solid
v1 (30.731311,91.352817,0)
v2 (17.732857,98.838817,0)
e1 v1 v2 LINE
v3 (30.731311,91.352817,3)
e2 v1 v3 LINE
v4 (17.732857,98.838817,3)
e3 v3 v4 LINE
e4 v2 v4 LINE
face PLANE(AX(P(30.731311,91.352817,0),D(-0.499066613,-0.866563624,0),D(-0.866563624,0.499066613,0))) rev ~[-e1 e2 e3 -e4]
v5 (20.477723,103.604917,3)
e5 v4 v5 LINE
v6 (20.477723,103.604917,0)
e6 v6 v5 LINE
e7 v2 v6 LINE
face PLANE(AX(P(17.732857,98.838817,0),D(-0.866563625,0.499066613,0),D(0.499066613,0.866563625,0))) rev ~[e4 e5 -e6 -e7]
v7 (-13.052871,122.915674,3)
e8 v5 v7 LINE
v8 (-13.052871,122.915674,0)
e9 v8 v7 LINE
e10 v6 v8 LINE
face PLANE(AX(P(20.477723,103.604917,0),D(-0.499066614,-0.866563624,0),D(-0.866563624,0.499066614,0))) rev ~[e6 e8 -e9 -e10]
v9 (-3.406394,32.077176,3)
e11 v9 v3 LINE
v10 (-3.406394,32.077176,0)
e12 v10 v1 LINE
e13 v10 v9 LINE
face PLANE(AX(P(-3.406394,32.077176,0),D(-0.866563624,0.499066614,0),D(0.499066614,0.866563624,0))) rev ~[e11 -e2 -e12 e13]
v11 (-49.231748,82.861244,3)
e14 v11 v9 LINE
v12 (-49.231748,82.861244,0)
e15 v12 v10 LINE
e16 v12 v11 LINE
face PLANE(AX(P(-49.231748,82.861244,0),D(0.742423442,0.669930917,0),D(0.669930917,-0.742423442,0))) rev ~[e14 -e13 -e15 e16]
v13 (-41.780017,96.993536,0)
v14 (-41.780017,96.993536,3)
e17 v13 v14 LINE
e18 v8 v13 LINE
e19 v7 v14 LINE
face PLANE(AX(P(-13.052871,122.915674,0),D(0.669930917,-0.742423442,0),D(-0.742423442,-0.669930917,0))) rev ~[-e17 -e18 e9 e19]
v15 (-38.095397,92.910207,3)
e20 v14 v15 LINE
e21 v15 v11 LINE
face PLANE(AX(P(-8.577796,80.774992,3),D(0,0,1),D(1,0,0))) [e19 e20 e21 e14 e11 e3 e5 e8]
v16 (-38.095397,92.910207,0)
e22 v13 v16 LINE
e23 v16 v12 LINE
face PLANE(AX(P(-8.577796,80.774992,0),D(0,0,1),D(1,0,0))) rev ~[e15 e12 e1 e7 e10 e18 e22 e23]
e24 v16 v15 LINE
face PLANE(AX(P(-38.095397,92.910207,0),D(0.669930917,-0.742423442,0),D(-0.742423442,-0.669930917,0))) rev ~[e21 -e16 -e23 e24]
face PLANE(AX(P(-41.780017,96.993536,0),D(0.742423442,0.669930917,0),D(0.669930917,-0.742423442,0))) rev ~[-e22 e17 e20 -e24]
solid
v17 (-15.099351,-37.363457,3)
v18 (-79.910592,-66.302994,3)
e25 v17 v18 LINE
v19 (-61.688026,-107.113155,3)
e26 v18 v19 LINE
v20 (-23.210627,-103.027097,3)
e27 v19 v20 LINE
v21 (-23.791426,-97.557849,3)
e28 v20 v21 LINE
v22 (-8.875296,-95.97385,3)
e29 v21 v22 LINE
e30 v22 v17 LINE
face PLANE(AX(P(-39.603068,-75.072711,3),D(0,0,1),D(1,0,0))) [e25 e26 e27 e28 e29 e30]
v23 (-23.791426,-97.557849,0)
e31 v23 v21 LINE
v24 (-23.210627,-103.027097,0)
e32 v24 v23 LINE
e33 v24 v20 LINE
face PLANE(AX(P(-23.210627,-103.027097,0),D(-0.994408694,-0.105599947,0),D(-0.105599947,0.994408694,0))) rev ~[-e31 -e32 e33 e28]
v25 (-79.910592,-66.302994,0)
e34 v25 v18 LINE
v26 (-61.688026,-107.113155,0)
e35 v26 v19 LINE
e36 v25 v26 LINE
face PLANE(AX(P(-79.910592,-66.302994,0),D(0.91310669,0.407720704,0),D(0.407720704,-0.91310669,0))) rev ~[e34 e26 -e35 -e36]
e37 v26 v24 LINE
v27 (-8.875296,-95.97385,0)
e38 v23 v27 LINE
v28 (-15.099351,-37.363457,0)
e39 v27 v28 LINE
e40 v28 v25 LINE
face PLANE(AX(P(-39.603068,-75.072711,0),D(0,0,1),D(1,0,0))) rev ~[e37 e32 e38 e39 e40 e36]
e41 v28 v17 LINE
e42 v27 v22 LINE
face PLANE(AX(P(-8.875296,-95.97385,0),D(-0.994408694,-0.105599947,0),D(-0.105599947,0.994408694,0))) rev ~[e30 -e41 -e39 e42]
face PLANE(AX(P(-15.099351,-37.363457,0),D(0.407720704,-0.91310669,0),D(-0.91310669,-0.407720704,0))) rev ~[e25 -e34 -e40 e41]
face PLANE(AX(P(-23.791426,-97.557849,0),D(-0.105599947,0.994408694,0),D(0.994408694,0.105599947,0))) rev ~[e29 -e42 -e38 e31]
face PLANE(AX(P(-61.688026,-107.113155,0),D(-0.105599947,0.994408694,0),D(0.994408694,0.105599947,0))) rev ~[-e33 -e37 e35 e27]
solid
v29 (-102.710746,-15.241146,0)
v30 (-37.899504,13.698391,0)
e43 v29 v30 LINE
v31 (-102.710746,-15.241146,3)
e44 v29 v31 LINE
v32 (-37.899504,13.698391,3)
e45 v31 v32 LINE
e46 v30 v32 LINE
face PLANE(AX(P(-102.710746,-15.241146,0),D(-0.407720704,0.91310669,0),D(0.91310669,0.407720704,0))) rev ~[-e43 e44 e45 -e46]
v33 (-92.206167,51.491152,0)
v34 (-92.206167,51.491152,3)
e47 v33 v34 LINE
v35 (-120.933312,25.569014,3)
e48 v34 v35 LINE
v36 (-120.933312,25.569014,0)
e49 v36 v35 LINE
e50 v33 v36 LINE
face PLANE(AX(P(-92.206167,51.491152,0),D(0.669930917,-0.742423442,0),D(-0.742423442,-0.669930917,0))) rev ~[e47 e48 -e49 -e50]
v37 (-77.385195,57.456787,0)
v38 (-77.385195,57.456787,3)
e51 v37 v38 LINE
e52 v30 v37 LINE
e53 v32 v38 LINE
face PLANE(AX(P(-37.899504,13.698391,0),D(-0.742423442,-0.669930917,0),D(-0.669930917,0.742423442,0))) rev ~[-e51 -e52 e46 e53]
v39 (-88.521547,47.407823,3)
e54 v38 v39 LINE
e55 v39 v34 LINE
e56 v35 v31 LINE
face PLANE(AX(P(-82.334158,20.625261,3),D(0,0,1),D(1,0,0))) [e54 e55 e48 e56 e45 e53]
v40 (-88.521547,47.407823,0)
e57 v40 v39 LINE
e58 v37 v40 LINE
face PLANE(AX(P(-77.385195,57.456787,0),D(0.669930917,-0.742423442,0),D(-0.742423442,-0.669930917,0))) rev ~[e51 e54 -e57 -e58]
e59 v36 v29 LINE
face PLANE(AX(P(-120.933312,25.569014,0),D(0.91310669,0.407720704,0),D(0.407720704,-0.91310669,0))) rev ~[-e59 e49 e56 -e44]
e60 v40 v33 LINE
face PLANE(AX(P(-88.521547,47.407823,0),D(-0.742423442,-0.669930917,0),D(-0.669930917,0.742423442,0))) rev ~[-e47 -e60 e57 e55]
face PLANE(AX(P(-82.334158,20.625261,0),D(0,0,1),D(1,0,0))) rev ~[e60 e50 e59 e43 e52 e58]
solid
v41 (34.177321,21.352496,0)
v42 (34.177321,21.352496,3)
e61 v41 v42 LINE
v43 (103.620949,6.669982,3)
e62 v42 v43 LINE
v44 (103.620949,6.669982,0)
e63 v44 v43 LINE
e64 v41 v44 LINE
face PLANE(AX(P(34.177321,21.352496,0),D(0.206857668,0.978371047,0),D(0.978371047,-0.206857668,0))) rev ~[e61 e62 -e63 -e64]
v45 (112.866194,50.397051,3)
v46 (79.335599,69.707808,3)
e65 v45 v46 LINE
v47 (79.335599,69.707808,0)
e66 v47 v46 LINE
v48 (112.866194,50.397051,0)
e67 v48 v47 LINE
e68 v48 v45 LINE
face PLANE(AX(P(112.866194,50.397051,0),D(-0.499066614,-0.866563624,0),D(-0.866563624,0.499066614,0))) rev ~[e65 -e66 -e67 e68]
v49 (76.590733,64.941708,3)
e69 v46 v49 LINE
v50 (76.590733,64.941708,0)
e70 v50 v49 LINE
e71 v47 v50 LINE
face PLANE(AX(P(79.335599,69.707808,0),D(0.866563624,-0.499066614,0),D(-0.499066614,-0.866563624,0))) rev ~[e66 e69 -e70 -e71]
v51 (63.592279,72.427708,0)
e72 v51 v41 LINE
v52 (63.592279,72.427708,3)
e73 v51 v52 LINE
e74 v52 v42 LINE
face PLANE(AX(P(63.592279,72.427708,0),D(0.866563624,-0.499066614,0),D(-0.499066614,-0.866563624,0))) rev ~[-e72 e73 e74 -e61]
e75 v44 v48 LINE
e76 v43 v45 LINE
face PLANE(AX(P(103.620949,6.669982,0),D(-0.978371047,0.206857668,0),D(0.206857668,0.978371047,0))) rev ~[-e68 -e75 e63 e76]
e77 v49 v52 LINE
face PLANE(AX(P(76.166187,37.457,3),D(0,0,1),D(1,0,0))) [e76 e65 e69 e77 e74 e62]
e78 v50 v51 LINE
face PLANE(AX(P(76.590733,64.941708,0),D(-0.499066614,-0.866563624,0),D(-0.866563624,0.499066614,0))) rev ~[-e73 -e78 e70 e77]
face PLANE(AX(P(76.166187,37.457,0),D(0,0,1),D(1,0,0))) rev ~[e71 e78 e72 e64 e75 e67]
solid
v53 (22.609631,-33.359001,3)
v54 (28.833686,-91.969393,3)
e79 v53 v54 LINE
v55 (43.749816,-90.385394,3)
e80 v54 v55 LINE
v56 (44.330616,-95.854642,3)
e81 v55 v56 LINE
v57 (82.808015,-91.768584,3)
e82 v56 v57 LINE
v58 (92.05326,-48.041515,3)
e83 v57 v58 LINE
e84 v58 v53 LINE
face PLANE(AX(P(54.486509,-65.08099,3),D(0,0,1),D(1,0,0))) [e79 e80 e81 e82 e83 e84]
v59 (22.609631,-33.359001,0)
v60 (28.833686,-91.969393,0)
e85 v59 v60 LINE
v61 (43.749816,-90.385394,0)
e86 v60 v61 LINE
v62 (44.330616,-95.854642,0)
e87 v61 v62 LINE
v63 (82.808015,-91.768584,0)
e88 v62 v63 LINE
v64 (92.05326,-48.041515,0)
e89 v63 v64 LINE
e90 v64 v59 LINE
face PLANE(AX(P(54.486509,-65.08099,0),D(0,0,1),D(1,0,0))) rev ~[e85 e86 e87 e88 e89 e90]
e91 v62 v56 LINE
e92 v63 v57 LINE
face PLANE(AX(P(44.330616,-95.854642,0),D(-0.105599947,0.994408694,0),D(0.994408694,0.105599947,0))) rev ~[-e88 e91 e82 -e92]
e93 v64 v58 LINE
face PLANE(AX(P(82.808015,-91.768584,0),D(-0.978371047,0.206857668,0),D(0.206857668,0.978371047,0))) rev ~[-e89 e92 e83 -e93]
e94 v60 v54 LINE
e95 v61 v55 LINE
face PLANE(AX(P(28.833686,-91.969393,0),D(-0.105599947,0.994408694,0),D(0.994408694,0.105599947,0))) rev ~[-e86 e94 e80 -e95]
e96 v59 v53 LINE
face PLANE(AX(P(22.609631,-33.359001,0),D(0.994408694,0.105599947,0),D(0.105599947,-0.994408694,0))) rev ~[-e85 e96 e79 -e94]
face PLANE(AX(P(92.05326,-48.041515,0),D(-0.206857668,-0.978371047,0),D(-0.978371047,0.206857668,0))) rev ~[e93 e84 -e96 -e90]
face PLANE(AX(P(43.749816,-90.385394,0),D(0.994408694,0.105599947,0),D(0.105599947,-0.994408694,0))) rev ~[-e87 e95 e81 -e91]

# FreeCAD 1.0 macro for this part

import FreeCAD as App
import Part
import Sketcher


def add_polygon(sketch, points):
    """Adds a closed chain of lines whose ends are joined by coincident constraints."""
    first, n = sketch.GeometryCount, len(points)
    for a, b in zip(points, points[1:] + points[:1]):
        sketch.addGeometry(Part.LineSegment(App.Vector(*a, 0), App.Vector(*b, 0)), False)
    for i in range(n):
        sketch.addConstraint(Sketcher.Constraint("Coincident", first + i, 2, first + (i + 1) % n, 1))

doc = App.newDocument("Part")
body = doc.addObject("PartDesign::Body", "Body")

# Sketch on XY plane
sketch1 = body.newObject("Sketcher::SketchObject", "Sketch")
sketch1.AttachmentSupport = (doc.getObject("XY_Plane"), [""])
sketch1.MapMode = "FlatFace"
add_polygon(sketch1, [(-37.899504, 13.698391), (-77.385195, 57.456787), (-88.521547, 47.407823), (-92.206167, 51.491152), (-120.933312, 25.569014), (-102.710746, -15.241146)])  # lines 0-5
sketch1.addConstraint(Sketcher.Constraint("Perpendicular", 0, 1))
sketch1.addConstraint(Sketcher.Constraint("Perpendicular", 1, 2))
sketch1.addConstraint(Sketcher.Constraint("Perpendicular", 2, 3))
sketch1.addConstraint(Sketcher.Constraint("Perpendicular", 4, 5))
sketch1.addConstraint(Sketcher.Constraint("Distance", 1, 15.0))
sketch1.addConstraint(Sketcher.Constraint("Distance", 2, 5.5))
sketch1.addConstraint(Sketcher.Constraint("DistanceX", 4, 2, 1, 2, 14.189199))
sketch1.addConstraint(Sketcher.Constraint("DistanceY", 4, 2, 2, 2, 66.732298))
sketch1.addConstraint(Sketcher.Constraint("DistanceY", -1, 1, 5, 2, 13.698391))
sketch1.addConstraint(Sketcher.Constraint("DistanceX", 1, 2, 0, 2, 11.136352))
sketch1.addConstraint(Sketcher.Constraint("DistanceY", 3, 2, 2, 2, 25.922138))
sketch1.addConstraint(Sketcher.Constraint("DistanceX", 0, 2, -1, 1, 77.385195))
pad1 = body.newObject("PartDesign::Pad", "Pad")
pad1.Profile = sketch1
pad1.Length = 3
body2 = doc.addObject("PartDesign::Body", "Body001")

# Sketch on XY plane
sketch2 = body2.newObject("Sketcher::SketchObject", "Sketch001")
sketch2.AttachmentSupport = (doc.getObject("XY_Plane001"), [""])
sketch2.MapMode = "FlatFace"
add_polygon(sketch2, [(30.731311, 91.352817), (17.732857, 98.838817), (20.477723, 103.604917), (-13.052871, 122.915674), (-41.780017, 96.993536), (-38.095397, 92.910207), (-49.231748, 82.861244), (-3.406394, 32.077176)])  # lines 0-7
sketch2.addConstraint(Sketcher.Constraint("Perpendicular", 0, 1))
sketch2.addConstraint(Sketcher.Constraint("Perpendicular", 1, 2))
sketch2.addConstraint(Sketcher.Constraint("Perpendicular", 3, 4))
sketch2.addConstraint(Sketcher.Constraint("Perpendicular", 4, 5))
sketch2.addConstraint(Sketcher.Constraint("Perpendicular", 5, 6))
sketch2.addConstraint(Sketcher.Constraint("Perpendicular", 2, 7))
sketch2.addConstraint(Sketcher.Constraint("Equal", 2, 3))
sketch2.addConstraint(Sketcher.Constraint("Equal", 1, 4))
sketch2.addConstraint(Sketcher.Constraint("Equal", 0, 5))
sketch2.addConstraint(Sketcher.Constraint("Distance", 0, 15.0))
sketch2.addConstraint(Sketcher.Constraint("Distance", 1, 5.5))
sketch2.addConstraint(Sketcher.Constraint("DistanceY", 7, 2, 0, 2, 7.485999))
sketch2.addConstraint(Sketcher.Constraint("DistanceX", 2, 2, -1, 1, 13.052871))
sketch2.addConstraint(Sketcher.Constraint("DistanceX", 5, 2, -1, 1, 49.231748))
sketch2.addConstraint(Sketcher.Constraint("DistanceX", -1, 1, 7, 2, 30.731311))
sketch2.addConstraint(Sketcher.Constraint("DistanceY", -1, 1, 0, 2, 98.838817))
pad2 = body2.newObject("PartDesign::Pad", "Pad001")
pad2.Profile = sketch2
pad2.Length = 3
body3 = doc.addObject("PartDesign::Body", "Body002")

# Sketch on XY plane
sketch3 = body3.newObject("Sketcher::SketchObject", "Sketch002")
sketch3.AttachmentSupport = (doc.getObject("XY_Plane002"), [""])
sketch3.MapMode = "FlatFace"
add_polygon(sketch3, [(-15.099351, -37.363457), (-79.910592, -66.302994), (-61.688026, -107.113155), (-23.210627, -103.027097), (-23.791426, -97.557849), (-8.875296, -95.97385)])  # lines 0-5
sketch3.addConstraint(Sketcher.Constraint("Perpendicular", 0, 1))
sketch3.addConstraint(Sketcher.Constraint("Perpendicular", 2, 3))
sketch3.addConstraint(Sketcher.Constraint("Perpendicular", 3, 4))
sketch3.addConstraint(Sketcher.Constraint("Perpendicular", 4, 5))
sketch3.addConstraint(Sketcher.Constraint("Distance", 4, 15.0))
sketch3.addConstraint(Sketcher.Constraint("Distance", 3, 5.5))
sketch3.addConstraint(Sketcher.Constraint("DistanceY", 3, 2, 4, 2, 1.583999))
sketch3.addConstraint(Sketcher.Constraint("DistanceX", 1, 2, 2, 2, 38.477399))
sketch3.addConstraint(Sketcher.Constraint("DistanceY", 3, 2, -1, 1, 97.557849))
sketch3.addConstraint(Sketcher.Constraint("DistanceX", 5, 2, -1, 1, 15.099351))
sketch3.addConstraint(Sketcher.Constraint("DistanceY", 1, 2, 0, 2, 40.81016))
sketch3.addConstraint(Sketcher.Constraint("DistanceY", 3, 2, 5, 2, 60.194392))
pad3 = body3.newObject("PartDesign::Pad", "Pad002")
pad3.Profile = sketch3
pad3.Length = 3
body4 = doc.addObject("PartDesign::Body", "Body003")

# Sketch on XY plane
sketch4 = body4.newObject("Sketcher::SketchObject", "Sketch003")
sketch4.AttachmentSupport = (doc.getObject("XY_Plane003"), [""])
sketch4.MapMode = "FlatFace"
add_polygon(sketch4, [(112.866194, 50.397051), (79.335599, 69.707808), (76.590733, 64.941708), (63.592279, 72.427708), (34.177321, 21.352496), (103.620949, 6.669982)])  # lines 0-5
sketch4.addConstraint(Sketcher.Constraint("Perpendicular", 0, 1))
sketch4.addConstraint(Sketcher.Constraint("Perpendicular", 1, 2))
sketch4.addConstraint(Sketcher.Constraint("Perpendicular", 2, 3))
sketch4.addConstraint(Sketcher.Constraint("Perpendicular", 4, 5))
sketch4.addConstraint(Sketcher.Constraint("Distance", 2, 15.0))
sketch4.addConstraint(Sketcher.Constraint("Distance", 1, 5.5))
sketch4.addConstraint(Sketcher.Constraint("DistanceY", 1, 2, 2, 2, 7.485999))
sketch4.addConstraint(Sketcher.Constraint("DistanceX", -1, 1, 0, 2, 79.335599))
sketch4.addConstraint(Sketcher.Constraint("DistanceY", -1, 1, 0, 2, 69.707808))
sketch4.addConstraint(Sketcher.Constraint("DistanceX", -1, 1, 3, 2, 34.177321))
sketch4.addConstraint(Sketcher.Constraint("DistanceX", -1, 1, 4, 2, 103.620949))
sketch4.addConstraint(Sketcher.Constraint("DistanceY", -1, 1, 4, 2, 6.669982))
pad4 = body4.newObject("PartDesign::Pad", "Pad003")
pad4.Profile = sketch4
pad4.Length = 3
body5 = doc.addObject("PartDesign::Body", "Body004")

# Sketch on XY plane
sketch5 = body5.newObject("Sketcher::SketchObject", "Sketch004")
sketch5.AttachmentSupport = (doc.getObject("XY_Plane004"), [""])
sketch5.MapMode = "FlatFace"
add_polygon(sketch5, [(22.609631, -33.359001), (28.833686, -91.969393), (43.749816, -90.385394), (44.330616, -95.854642), (82.808015, -91.768584), (92.05326, -48.041515)])  # lines 0-5
sketch5.addConstraint(Sketcher.Constraint("Perpendicular", 0, 1))
sketch5.addConstraint(Sketcher.Constraint("Perpendicular", 1, 2))
sketch5.addConstraint(Sketcher.Constraint("Perpendicular", 2, 3))
sketch5.addConstraint(Sketcher.Constraint("Perpendicular", 4, 5))
sketch5.addConstraint(Sketcher.Constraint("Distance", 1, 15.0))
sketch5.addConstraint(Sketcher.Constraint("Distance", 2, 5.5))
sketch5.addConstraint(Sketcher.Constraint("DistanceY", 5, 2, -1, 1, 33.359001))
sketch5.addConstraint(Sketcher.Constraint("DistanceY", 0, 2, 1, 2, 1.583999))
sketch5.addConstraint(Sketcher.Constraint("DistanceX", 2, 2, 3, 2, 38.477399))
sketch5.addConstraint(Sketcher.Constraint("DistanceY", 2, 2, -1, 1, 95.854642))
sketch5.addConstraint(Sketcher.Constraint("DistanceX", -1, 1, 4, 2, 92.05326))
sketch5.addConstraint(Sketcher.Constraint("DistanceX", -1, 1, 5, 2, 22.609631))
pad5 = body5.newObject("PartDesign::Pad", "Pad004")
pad5.Profile = sketch5
pad5.Length = 3

doc.recompute()
